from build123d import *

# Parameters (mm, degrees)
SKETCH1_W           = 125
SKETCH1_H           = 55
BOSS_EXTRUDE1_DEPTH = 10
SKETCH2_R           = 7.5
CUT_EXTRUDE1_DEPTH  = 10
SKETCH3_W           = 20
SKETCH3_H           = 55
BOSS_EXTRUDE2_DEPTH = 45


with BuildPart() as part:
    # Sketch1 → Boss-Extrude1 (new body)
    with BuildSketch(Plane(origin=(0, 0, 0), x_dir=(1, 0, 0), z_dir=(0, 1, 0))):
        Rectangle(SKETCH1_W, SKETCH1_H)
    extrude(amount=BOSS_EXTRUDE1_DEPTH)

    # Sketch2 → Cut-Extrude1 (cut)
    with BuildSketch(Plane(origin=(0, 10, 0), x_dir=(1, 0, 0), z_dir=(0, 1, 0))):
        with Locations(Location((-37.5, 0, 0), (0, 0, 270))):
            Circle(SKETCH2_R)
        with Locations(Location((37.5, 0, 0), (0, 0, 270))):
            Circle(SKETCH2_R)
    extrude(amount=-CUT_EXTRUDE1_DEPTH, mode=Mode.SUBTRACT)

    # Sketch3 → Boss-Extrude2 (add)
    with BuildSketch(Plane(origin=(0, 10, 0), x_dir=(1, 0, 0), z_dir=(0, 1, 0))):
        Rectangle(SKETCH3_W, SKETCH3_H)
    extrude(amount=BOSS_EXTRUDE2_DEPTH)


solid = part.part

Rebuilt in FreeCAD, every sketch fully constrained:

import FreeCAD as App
import Part
import Sketcher

V = App.Vector
Q = App.Units.Quantity


def add_polygon(sketch, points):
    """Adds a closed chain of lines whose ends are joined by coincident constraints."""
    first, n = sketch.GeometryCount, len(points)
    for a, b in zip(points, points[1:] + points[:1]):
        sketch.addGeometry(Part.LineSegment(App.Vector(*a, 0), App.Vector(*b, 0)), False)
    for i in range(n):
        sketch.addConstraint(Sketcher.Constraint("Coincident", first + i, 2, first + (i + 1) % n, 1))

doc = App.newDocument("Part")
params = doc.addObject("Spreadsheet::Sheet", "Params")
for row, (alias, value) in enumerate([
    ("sketch1_width", "125 mm"),
    ("sketch1_height", "55 mm"),
    ("pad1_length", "10 mm"),
    ("sketch2_diameter", "15 mm"),
    ("pocket1_length", "10 mm"),
    ("sketch3_width", "20 mm"),
    ("sketch3_height", "55 mm"),
    ("pad2_length", "45 mm"),
], start=1):
    params.set(f"A{row}", alias)
    params.set(f"B{row}", "=" + value)
    params.setAlias(f"B{row}", alias)

body = doc.addObject("PartDesign::Body", "Body")

# Sketch on XZ plane
sketch1 = body.newObject("Sketcher::SketchObject", "Sketch")
sketch1.AttachmentSupport = (doc.getObject("XZ_Plane"), [""])
sketch1.MapMode = "FlatFace"
add_polygon(sketch1, [(-62.5, -27.5), (-62.5, 27.5), (62.5, 27.5), (62.5, -27.5)])  # lines 0-3
sketch1.addConstraint([
    Sketcher.Constraint("Vertical", 0),
    Sketcher.Constraint("Horizontal", 1),
    Sketcher.Constraint("Vertical", 2),
    Sketcher.Constraint("Horizontal", 3),
    Sketcher.Constraint("Symmetric", 0, 2, 2, 2, -1, 1),
    Sketcher.Constraint("DistanceX", 1, 1, 1, 2, Q("125 mm")),
    Sketcher.Constraint("DistanceY", 0, 1, 0, 2, Q("55 mm")),
])
sketch1.setExpression("Constraints[9]", "Params.sketch1_width")
sketch1.setExpression("Constraints[10]", "Params.sketch1_height")
pad1 = body.newObject("PartDesign::Pad", "Pad")
pad1.Profile = sketch1
pad1.setExpression("Length", "Params.pad1_length")
pad1.Reversed = True

# Sketch on XZ plane
sketch2 = body.newObject("Sketcher::SketchObject", "Sketch001")
sketch2.AttachmentSupport = (doc.getObject("XZ_Plane"), [""])
sketch2.MapMode = "FlatFace"
sketch2.AttachmentOffset = App.Placement(V(0, 0, -10), App.Rotation())
sketch2.addGeometry([
    Part.Circle(V(-37.5, 0, 0), V(0, 0, 1), 7.5),
    Part.Circle(V(37.5, 0, 0), V(0, 0, 1), 7.5),
], False)
sketch2.addConstraint([
    Sketcher.Constraint("Equal", 0, 1),
    Sketcher.Constraint("Symmetric", 0, 3, 1, 3, -1, 1),
    Sketcher.Constraint("PointOnObject", 0, 3, -1),
    Sketcher.Constraint("Diameter", 0, Q("15 mm")),
    Sketcher.Constraint("DistanceX", 0, 3, 1, 3, Q("75 mm")),
])
sketch2.setExpression("Constraints[3]", "Params.sketch2_diameter")
pocket1 = body.newObject("PartDesign::Pocket", "Pocket")
pocket1.Profile = sketch2
pocket1.setExpression("Length", "Params.pocket1_length")
pocket1.Reversed = True

# Sketch on XZ plane
sketch3 = body.newObject("Sketcher::SketchObject", "Sketch002")
sketch3.AttachmentSupport = (doc.getObject("XZ_Plane"), [""])
sketch3.MapMode = "FlatFace"
sketch3.AttachmentOffset = App.Placement(V(0, 0, -10), App.Rotation())
add_polygon(sketch3, [(-10, -27.5), (-10, 27.5), (10, 27.5), (10, -27.5)])  # lines 0-3
sketch3.addConstraint([
    Sketcher.Constraint("Vertical", 0),
    Sketcher.Constraint("Horizontal", 1),
    Sketcher.Constraint("Vertical", 2),
    Sketcher.Constraint("Horizontal", 3),
    Sketcher.Constraint("Symmetric", 0, 2, 2, 2, -1, 1),
    Sketcher.Constraint("DistanceX", 1, 1, 1, 2, Q("20 mm")),
    Sketcher.Constraint("DistanceY", 0, 1, 0, 2, Q("55 mm")),
])
sketch3.setExpression("Constraints[9]", "Params.sketch3_width")
sketch3.setExpression("Constraints[10]", "Params.sketch3_height")
pad2 = body.newObject("PartDesign::Pad", "Pad001")
pad2.Profile = sketch3
pad2.setExpression("Length", "Params.pad2_length")
pad2.Reversed = True

doc.recompute()
